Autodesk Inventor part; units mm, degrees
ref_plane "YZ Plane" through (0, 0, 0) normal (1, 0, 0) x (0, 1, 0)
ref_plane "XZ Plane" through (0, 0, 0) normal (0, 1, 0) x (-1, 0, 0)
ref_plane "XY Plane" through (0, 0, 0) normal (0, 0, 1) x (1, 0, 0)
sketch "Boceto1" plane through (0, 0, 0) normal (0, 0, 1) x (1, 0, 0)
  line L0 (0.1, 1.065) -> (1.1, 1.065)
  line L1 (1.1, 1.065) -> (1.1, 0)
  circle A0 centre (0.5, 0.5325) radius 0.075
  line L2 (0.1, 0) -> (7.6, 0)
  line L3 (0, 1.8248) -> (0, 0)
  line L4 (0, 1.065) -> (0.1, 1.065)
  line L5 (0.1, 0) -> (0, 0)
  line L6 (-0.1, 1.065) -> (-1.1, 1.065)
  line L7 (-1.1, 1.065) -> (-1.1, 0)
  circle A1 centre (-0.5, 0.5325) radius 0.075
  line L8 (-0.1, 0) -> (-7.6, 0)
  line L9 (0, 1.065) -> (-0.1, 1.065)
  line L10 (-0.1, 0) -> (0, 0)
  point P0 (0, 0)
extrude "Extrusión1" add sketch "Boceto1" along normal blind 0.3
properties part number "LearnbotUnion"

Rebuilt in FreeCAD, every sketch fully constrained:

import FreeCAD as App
import Part
import Sketcher

V = App.Vector


def add_polygon(sketch, points):
    """Adds a closed chain of lines whose ends are joined by coincident constraints."""
    first, n = sketch.GeometryCount, len(points)
    for a, b in zip(points, points[1:] + points[:1]):
        sketch.addGeometry(Part.LineSegment(App.Vector(*a, 0), App.Vector(*b, 0)), False)
    for i in range(n):
        sketch.addConstraint(Sketcher.Constraint("Coincident", first + i, 2, first + (i + 1) % n, 1))

doc = App.newDocument("Part")
body = doc.addObject("PartDesign::Body", "Body")

# Sketch on XY plane
sketch1 = doc.addObject("Sketcher::SketchObject", "Sketch")
body.addObject(sketch1)
sketch1.AttachmentSupport = (doc.XY_Plane, [""])
sketch1.MapMode = "FlatFace"
add_polygon(sketch1, [(1.1, 1.065), (-1.1, 1.065), (-1.1, 0), (1.1, 0)])  # lines 0-3
sketch1.addGeometry(Part.Circle(V(0.5, 0.5325, 0), V(0, 0, 1), 0.075), False)  # 4
sketch1.addGeometry(Part.Circle(V(-0.5, 0.5325, 0), V(0, 0, 1), 0.075), False)  # 5
sketch1.addConstraint(Sketcher.Constraint("Horizontal", 0))
sketch1.addConstraint(Sketcher.Constraint("Vertical", 1))
sketch1.addConstraint(Sketcher.Constraint("Horizontal", 2))
sketch1.addConstraint(Sketcher.Constraint("Vertical", 3))
sketch1.addConstraint(Sketcher.Constraint("Equal", 4, 5))
sketch1.addConstraint(Sketcher.Constraint("Symmetric", 1, 2, 2, 2, -1, 1))
sketch1.addConstraint(Sketcher.Constraint("Symmetric", 4, 3, 5, 3, -2))
sketch1.addConstraint(Sketcher.Constraint("Diameter", 4, 0.15))
sketch1.addConstraint(Sketcher.Constraint("DistanceX", 0, 2, 0, 1, 2.2))
sketch1.addConstraint(Sketcher.Constraint("DistanceX", 5, 3, 4, 3, 1.0))
sketch1.addConstraint(Sketcher.Constraint("DistanceY", 1, 2, 1, 1, 1.065))
sketch1.addConstraint(Sketcher.Constraint("DistanceY", -1, 1, 4, 3, 0.5325))
pad1 = doc.addObject("PartDesign::Pad", "Pad")
body.addObject(pad1)
pad1.Profile = sketch1
pad1.Length = 0.3

doc.recompute()
